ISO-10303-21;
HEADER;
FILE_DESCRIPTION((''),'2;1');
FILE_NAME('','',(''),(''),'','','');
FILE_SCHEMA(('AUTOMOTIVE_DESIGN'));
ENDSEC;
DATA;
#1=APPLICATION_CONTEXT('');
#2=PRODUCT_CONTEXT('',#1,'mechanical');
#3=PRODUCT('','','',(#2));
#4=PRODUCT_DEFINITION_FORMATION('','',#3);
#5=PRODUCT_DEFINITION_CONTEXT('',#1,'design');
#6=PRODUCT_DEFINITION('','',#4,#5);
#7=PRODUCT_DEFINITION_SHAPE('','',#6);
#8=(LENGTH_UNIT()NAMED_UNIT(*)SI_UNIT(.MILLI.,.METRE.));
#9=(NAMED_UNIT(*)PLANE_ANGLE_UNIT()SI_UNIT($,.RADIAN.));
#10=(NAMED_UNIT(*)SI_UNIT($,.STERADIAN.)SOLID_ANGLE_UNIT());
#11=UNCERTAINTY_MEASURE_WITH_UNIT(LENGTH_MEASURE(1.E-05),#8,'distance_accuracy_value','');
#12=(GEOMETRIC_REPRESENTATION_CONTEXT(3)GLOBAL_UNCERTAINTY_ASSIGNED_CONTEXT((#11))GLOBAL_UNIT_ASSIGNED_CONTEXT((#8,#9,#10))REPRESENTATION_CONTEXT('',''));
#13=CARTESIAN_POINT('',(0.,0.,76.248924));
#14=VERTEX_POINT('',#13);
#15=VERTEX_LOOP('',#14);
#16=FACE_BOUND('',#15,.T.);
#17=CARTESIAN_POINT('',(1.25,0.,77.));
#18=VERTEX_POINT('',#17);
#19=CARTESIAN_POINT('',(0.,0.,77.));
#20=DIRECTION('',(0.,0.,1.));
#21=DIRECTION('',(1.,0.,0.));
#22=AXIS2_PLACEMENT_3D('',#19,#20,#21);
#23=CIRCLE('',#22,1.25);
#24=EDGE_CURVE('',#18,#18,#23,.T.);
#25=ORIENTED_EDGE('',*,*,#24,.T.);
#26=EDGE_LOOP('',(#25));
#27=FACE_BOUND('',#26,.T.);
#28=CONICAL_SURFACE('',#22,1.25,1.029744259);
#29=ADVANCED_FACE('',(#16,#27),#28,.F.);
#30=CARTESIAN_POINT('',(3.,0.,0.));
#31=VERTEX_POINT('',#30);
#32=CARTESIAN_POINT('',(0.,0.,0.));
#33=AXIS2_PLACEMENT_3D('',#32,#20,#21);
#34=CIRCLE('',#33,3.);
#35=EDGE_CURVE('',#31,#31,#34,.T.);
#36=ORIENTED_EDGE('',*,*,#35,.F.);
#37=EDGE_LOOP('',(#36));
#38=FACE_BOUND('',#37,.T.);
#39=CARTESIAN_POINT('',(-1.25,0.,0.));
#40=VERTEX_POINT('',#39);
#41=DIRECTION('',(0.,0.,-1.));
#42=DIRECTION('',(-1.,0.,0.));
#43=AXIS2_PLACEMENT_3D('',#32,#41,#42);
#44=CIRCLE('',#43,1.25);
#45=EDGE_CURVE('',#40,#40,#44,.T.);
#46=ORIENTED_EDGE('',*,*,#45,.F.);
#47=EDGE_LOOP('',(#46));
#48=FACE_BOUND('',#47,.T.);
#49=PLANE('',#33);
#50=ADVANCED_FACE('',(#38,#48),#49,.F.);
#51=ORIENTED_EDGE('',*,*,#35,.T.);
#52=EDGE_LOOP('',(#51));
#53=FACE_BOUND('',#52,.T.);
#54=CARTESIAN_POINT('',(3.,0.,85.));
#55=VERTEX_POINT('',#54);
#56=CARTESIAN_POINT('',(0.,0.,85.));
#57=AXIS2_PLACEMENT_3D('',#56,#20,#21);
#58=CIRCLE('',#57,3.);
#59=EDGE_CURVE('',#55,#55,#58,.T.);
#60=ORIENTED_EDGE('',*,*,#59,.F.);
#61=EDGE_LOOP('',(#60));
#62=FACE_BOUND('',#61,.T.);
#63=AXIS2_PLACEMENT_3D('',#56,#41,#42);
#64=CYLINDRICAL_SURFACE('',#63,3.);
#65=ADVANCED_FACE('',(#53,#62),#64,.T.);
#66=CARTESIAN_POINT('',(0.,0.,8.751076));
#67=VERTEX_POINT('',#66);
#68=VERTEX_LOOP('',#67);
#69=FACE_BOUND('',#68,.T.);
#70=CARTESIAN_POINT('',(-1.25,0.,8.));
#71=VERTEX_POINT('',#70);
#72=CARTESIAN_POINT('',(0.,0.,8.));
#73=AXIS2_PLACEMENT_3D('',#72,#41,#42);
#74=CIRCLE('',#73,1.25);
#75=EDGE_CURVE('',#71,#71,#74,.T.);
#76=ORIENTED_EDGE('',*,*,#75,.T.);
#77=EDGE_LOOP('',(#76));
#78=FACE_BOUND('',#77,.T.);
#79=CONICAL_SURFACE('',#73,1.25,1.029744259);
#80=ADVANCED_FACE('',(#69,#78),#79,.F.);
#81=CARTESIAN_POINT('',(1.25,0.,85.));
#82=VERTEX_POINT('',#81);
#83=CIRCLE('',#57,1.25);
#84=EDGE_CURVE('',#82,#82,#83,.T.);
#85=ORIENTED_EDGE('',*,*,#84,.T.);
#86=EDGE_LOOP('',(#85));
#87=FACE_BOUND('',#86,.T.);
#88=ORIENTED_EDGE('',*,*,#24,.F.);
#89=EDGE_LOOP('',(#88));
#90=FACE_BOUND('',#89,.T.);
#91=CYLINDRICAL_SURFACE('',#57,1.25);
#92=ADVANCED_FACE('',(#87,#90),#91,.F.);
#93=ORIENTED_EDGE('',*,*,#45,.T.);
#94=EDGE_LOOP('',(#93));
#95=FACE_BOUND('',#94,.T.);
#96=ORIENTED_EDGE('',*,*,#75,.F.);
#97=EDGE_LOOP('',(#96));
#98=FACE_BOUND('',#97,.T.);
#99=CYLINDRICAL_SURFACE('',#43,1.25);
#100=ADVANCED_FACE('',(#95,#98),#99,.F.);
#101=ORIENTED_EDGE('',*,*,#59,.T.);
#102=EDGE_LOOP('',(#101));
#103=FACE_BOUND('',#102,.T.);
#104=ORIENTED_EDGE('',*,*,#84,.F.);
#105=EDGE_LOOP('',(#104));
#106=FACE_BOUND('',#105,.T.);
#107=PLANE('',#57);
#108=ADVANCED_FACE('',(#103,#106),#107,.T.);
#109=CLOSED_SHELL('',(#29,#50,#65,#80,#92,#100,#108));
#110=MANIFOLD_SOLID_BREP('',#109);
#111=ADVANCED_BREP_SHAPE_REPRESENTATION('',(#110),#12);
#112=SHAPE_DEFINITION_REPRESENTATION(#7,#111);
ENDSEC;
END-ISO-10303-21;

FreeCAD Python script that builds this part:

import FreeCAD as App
import Part
import Sketcher
from FreeCAD import Vector
Q = App.Units.Quantity

doc = App.newDocument("Part")
params = doc.addObject("Spreadsheet::Sheet", "Params")
for row, (alias, value) in enumerate([
    ("sketch1_diameter", "6 mm"),
    ("pad1_length", "85 mm"),
    ("sketch2_height", "8 mm"),
    ("sketch2_width", "1.25 mm"),
    ("groove_angle", "360 deg"),
    ("sketch3_diameter", "2.5 mm"),
    ("hole_diameter", "2.5 mm"),
    ("hole_depth", "8 mm"),
], start=1):
    params.set(f"A{row}", alias)
    params.set(f"B{row}", "=" + value)
    params.setAlias(f"B{row}", alias)

body = doc.addObject("PartDesign::Body", "Body")

# Sketch on XY plane
sketch1 = body.newObject("Sketcher::SketchObject", "Sketch")
sketch1.AttachmentSupport = (doc.getObject("XY_Plane"), [""])
sketch1.MapMode = "FlatFace"
sketch1.addGeometry(Part.Circle(Vector(0, 0, 0), Vector(0, 0, 1), 3), False)
sketch1.addConstraint([
    Sketcher.Constraint("Coincident", 0, 3, -1, 1),
    Sketcher.Constraint("Diameter", 0, 6.0),
])
sketch1.setExpression("Constraints[1]", "Params.sketch1_diameter")
pad1 = body.newObject("PartDesign::Pad", "Pad")
pad1.Profile = sketch1
pad1.setExpression("Length", "Params.pad1_length")

# Sketch on YZ plane
sketch2 = body.newObject("Sketcher::SketchObject", "Sketch001")
sketch2.AttachmentSupport = (doc.getObject("YZ_Plane"), [""])
sketch2.MapMode = "FlatFace"
sketch2.addGeometry([
    Part.LineSegment(Vector(0, 76.248924, 0), Vector(0, 85, 0)),
    Part.LineSegment(Vector(0, 85, 0), Vector(-1.25, 85, 0)),
    Part.LineSegment(Vector(-1.25, 85, 0), Vector(-1.25, 77, 0)),
    Part.LineSegment(Vector(-1.25, 77, 0), Vector(0, 76.248924, 0)),
], False)
sketch2.addConstraint([
    Sketcher.Constraint("Coincident", 0, 2, 1, 1),
    Sketcher.Constraint("Coincident", 1, 2, 2, 1),
    Sketcher.Constraint("Coincident", 2, 2, 3, 1),
    Sketcher.Constraint("Coincident", 3, 2, 0, 1),
    Sketcher.Constraint("Vertical", 0),
    Sketcher.Constraint("Horizontal", 1),
    Sketcher.Constraint("Vertical", 2),
    Sketcher.Constraint("PointOnObject", 0, 2, -2),
    Sketcher.Constraint("DistanceY", 2, 2, 2, 1, 8.0),
    Sketcher.Constraint("Angle", 3, Q("-31 deg")),
    Sketcher.Constraint("DistanceY", -1, 1, 0, 2, 85.0),
    Sketcher.Constraint("DistanceX", 1, 2, 1, 1, 1.25),
])
sketch2.setExpression("Constraints[8]", "Params.sketch2_height")
sketch2.setExpression("Constraints[11]", "Params.sketch2_width")
groove = body.newObject("PartDesign::Groove", "Groove")
groove.Profile = sketch2
groove.ReferenceAxis = (sketch2, ["V_Axis"])
groove.setExpression("Angle", "Params.groove_angle")

# Sketch on XY plane
sketch3 = body.newObject("Sketcher::SketchObject", "Sketch002")
sketch3.AttachmentSupport = (doc.getObject("XY_Plane"), [""])
sketch3.MapMode = "FlatFace"
sketch3.addGeometry(Part.Circle(Vector(0, 0, 0), Vector(0, 0, 1), 1.25), False)
sketch3.addConstraint([
    Sketcher.Constraint("Coincident", 0, 3, -1, 1),
    Sketcher.Constraint("Diameter", 0, 2.5),
])
sketch3.setExpression("Constraints[1]", "Params.sketch3_diameter")
doc.recompute()
hole = body.newObject("PartDesign::Hole", "Hole")
hole.Profile = sketch3
hole.ThreadType = "None"
hole.setExpression("Diameter", "Params.hole_diameter")
hole.DepthType = "Dimension"
hole.setExpression("Depth", "Params.hole_depth")
hole.DrillPoint = "Angled"
hole.DrillPointAngle = 118
hole.Reversed = True

doc.recompute()
